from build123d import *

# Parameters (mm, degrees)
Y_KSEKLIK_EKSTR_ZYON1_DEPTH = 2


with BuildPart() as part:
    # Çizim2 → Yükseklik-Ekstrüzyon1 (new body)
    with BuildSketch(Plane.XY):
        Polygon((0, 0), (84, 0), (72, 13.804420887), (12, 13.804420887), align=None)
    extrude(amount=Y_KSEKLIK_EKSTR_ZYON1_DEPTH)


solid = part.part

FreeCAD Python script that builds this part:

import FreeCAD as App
import Part
import Sketcher
from FreeCAD import Vector
Q = App.Units.Quantity


def add_polygon(sketch, points):
    """Adds a closed chain of lines whose ends are joined by coincident constraints."""
    first, n = sketch.GeometryCount, len(points)
    for a, b in zip(points, points[1:] + points[:1]):
        sketch.addGeometry(Part.LineSegment(App.Vector(*a, 0), App.Vector(*b, 0)), False)
    for i in range(n):
        sketch.addConstraint(Sketcher.Constraint("Coincident", first + i, 2, first + (i + 1) % n, 1))

doc = App.newDocument("Part")
body = doc.addObject("PartDesign::Body", "Body")

# Sketch on XY plane
sketch1 = body.newObject("Sketcher::SketchObject", "Sketch")
sketch1.AttachmentSupport = (doc.getObject("XY_Plane"), [""])
sketch1.MapMode = "FlatFace"
add_polygon(sketch1, [(0, 0), (84, 0), (72, 13.804421), (12, 13.804421)])  # lines 0-3
sketch1.addConstraint(Sketcher.Constraint("Horizontal", 0))
sketch1.addConstraint(Sketcher.Constraint("Horizontal", 2))
sketch1.addConstraint(Sketcher.Constraint("Coincident", 3, 2, -1, 1))
sketch1.addConstraint(Sketcher.Constraint("Equal", 1, 3))
sketch1.addConstraint(Sketcher.Constraint("DistanceX", 0, 1, 0, 2, Q("84 mm")))
sketch1.addConstraint(Sketcher.Constraint("DistanceX", 2, 2, 2, 1, Q("60 mm")))
sketch1.addConstraint(Sketcher.Constraint("Angle", 1, Q("131 deg")))
pad1 = body.newObject("PartDesign::Pad", "Pad")
pad1.Profile = sketch1
pad1.Length = 2

doc.recompute()
